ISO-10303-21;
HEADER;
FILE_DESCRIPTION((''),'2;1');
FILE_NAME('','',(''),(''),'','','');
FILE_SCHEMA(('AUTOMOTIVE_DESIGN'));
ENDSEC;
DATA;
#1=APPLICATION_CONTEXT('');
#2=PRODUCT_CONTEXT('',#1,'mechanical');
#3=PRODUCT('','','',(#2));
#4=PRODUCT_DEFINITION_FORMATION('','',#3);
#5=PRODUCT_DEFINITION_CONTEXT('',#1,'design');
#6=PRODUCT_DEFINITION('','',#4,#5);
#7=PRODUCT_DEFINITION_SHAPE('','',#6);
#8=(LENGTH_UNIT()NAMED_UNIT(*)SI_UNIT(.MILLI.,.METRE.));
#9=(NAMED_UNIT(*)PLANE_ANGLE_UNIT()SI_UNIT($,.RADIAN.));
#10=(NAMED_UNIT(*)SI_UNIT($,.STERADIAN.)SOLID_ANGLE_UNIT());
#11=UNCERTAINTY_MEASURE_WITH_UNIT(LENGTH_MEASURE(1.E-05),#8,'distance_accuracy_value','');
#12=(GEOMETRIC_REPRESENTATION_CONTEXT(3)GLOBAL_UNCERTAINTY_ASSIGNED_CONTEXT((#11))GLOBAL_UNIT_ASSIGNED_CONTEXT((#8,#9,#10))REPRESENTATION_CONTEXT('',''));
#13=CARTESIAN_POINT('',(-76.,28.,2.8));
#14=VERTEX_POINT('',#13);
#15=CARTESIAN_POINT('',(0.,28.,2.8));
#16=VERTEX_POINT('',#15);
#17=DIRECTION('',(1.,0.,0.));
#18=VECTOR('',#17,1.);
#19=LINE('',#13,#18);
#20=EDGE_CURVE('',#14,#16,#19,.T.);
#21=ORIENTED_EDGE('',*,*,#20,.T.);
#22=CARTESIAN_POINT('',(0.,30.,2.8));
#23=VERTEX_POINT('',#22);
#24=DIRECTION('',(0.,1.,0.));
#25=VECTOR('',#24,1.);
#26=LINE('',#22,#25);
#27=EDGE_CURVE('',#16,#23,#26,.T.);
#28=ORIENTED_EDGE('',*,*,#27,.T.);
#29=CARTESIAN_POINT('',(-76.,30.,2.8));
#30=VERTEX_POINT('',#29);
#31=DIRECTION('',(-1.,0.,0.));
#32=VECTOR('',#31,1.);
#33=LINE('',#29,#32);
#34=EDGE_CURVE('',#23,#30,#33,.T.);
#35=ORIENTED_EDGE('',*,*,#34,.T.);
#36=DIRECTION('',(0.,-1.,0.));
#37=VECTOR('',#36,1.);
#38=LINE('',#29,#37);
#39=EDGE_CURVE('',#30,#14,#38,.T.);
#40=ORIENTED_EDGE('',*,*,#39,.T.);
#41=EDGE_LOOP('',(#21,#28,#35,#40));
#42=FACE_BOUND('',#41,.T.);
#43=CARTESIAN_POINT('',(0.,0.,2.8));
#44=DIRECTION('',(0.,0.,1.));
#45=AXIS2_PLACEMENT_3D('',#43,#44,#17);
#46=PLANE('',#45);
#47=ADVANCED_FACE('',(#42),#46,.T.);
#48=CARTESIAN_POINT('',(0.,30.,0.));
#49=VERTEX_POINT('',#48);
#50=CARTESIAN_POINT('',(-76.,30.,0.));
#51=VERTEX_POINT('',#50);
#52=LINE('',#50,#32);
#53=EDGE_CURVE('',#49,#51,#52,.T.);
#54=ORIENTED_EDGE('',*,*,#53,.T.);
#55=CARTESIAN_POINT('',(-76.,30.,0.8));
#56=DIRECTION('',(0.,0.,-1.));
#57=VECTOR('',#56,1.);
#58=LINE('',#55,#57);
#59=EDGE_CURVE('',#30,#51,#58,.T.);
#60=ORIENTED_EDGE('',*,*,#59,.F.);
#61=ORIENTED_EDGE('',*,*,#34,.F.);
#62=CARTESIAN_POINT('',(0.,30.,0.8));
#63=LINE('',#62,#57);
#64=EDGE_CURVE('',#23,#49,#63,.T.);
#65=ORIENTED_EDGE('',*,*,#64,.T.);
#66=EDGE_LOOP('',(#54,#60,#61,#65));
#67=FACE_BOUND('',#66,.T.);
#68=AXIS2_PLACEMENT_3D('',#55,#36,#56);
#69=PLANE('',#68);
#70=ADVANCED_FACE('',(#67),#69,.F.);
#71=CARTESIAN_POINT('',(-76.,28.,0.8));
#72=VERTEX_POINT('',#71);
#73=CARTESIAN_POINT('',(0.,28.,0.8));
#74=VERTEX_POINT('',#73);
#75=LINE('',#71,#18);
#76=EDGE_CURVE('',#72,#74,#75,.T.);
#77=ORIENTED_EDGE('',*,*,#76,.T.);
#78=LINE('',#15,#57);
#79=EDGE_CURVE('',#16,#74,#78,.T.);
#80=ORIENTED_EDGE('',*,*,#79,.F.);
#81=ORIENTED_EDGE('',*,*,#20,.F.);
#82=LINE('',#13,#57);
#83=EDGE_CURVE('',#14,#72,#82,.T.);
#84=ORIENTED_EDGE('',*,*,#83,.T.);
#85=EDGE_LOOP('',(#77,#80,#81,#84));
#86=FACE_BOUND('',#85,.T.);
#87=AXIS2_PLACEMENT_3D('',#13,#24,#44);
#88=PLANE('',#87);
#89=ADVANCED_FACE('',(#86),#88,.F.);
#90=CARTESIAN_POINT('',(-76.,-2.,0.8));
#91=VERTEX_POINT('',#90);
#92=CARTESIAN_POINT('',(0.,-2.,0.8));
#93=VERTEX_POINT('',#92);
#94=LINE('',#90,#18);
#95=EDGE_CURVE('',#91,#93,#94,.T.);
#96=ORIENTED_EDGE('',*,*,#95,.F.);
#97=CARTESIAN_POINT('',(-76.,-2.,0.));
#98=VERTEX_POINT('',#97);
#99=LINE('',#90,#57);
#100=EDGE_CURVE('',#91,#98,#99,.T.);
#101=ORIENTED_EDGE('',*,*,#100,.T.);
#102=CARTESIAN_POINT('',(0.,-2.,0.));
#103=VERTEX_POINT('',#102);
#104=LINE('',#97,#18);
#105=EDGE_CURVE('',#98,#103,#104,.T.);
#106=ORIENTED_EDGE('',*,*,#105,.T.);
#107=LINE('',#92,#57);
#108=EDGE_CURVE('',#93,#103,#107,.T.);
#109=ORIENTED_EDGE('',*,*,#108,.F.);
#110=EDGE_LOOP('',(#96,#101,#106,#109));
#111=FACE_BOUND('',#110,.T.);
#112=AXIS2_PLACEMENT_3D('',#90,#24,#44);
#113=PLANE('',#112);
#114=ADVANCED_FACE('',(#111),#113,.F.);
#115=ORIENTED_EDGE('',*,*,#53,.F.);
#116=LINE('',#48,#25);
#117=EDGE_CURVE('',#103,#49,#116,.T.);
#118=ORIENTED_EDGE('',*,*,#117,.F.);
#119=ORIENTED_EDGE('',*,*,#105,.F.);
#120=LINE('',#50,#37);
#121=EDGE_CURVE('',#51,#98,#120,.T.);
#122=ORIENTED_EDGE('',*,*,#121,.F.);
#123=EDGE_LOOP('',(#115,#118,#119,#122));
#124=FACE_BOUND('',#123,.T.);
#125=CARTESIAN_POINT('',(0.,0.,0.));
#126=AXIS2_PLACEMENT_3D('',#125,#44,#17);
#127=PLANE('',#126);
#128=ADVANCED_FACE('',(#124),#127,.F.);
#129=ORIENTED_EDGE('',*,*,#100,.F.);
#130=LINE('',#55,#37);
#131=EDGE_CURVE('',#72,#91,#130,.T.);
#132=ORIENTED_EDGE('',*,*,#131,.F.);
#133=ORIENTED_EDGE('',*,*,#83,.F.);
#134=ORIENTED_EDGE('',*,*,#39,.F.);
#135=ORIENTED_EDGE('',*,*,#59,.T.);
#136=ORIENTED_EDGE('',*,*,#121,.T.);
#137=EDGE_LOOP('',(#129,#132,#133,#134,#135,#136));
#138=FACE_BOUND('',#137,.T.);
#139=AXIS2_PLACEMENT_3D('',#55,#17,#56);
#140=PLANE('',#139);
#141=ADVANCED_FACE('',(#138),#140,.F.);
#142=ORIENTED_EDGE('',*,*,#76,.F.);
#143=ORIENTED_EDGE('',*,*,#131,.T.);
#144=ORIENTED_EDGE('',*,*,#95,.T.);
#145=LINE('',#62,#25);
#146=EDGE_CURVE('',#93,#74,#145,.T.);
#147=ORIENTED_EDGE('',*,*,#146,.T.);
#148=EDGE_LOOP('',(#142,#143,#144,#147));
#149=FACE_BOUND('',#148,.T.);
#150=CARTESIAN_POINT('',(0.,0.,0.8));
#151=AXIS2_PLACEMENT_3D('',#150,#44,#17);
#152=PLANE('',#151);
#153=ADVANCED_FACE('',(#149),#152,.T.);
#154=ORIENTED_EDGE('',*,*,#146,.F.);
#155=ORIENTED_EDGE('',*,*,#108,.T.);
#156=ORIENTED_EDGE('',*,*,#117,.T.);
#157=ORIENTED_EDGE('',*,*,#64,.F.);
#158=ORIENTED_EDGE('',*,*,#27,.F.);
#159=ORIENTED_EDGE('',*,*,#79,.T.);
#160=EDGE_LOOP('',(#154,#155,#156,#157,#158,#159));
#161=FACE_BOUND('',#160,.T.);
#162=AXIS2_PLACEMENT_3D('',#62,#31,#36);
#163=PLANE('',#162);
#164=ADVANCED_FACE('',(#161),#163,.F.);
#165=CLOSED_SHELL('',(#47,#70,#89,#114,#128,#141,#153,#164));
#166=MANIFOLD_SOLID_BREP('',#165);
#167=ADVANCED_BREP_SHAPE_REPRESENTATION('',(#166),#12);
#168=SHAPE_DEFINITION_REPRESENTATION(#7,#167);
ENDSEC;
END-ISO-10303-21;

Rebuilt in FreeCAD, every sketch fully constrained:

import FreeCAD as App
import Part
import Sketcher
Q = App.Units.Quantity

doc = App.newDocument("Part")
params = doc.addObject("Spreadsheet::Sheet", "Params")
for row, (alias, value) in enumerate([
    ("sketch1_width", "76 mm"),
    ("sketch1_height", "32 mm"),
    ("pad1_length", "0.8 mm"),
    ("sketch2_width", "76 mm"),
    ("sketch2_height", "2 mm"),
    ("pad2_length", "2 mm"),
], start=1):
    params.set(f"A{row}", alias)
    params.set(f"B{row}", "=" + value)
    params.setAlias(f"B{row}", alias)

body = doc.addObject("PartDesign::Body", "Body")

# Sketch on XY plane
sketch1 = doc.addObject("Sketcher::SketchObject", "Sketch")
body.addObject(sketch1)
sketch1.AttachmentSupport = (doc.XY_Plane, [""])
sketch1.MapMode = "FlatFace"
sketch1.addGeometry([
    Part.LineSegment(App.Vector(-76, 30, 0), App.Vector(-76, -2, 0)),
    Part.LineSegment(App.Vector(-76, -2, 0), App.Vector(0, -2, 0)),
    Part.LineSegment(App.Vector(0, -2, 0), App.Vector(0, 30, 0)),
    Part.LineSegment(App.Vector(0, 30, 0), App.Vector(-76, 30, 0)),
], False)
sketch1.addConstraint([
    Sketcher.Constraint("Coincident", 0, 2, 1, 1),
    Sketcher.Constraint("Coincident", 1, 2, 2, 1),
    Sketcher.Constraint("Coincident", 2, 2, 3, 1),
    Sketcher.Constraint("Coincident", 3, 2, 0, 1),
    Sketcher.Constraint("Vertical", 0),
    Sketcher.Constraint("Horizontal", 1),
    Sketcher.Constraint("Vertical", 2),
    Sketcher.Constraint("Horizontal", 3),
    Sketcher.Constraint("PointOnObject", 1, 2, -2),
    Sketcher.Constraint("DistanceX", 1, 1, 1, 2, Q("76 mm")),
    Sketcher.Constraint("DistanceY", 0, 2, 0, 1, Q("32 mm")),
    Sketcher.Constraint("DistanceY", 0, 2, -1, 1, Q("2 mm")),
])
sketch1.setExpression("Constraints[9]", "Params.sketch1_width")
sketch1.setExpression("Constraints[10]", "Params.sketch1_height")
pad1 = doc.addObject("PartDesign::Pad", "Pad")
body.addObject(pad1)
pad1.Profile = sketch1
pad1.setExpression("Length", "Params.pad1_length")

# Sketch on XY plane
sketch2 = doc.addObject("Sketcher::SketchObject", "Sketch001")
body.addObject(sketch2)
sketch2.AttachmentSupport = (doc.XY_Plane, [""])
sketch2.MapMode = "FlatFace"
sketch2.AttachmentOffset = App.Placement(App.Vector(0, 0, 0.8), App.Rotation())
sketch2.addGeometry([
    Part.LineSegment(App.Vector(-76, 30, 0), App.Vector(-76, 28, 0)),
    Part.LineSegment(App.Vector(-76, 28, 0), App.Vector(0, 28, 0)),
    Part.LineSegment(App.Vector(0, 28, 0), App.Vector(0, 30, 0)),
    Part.LineSegment(App.Vector(0, 30, 0), App.Vector(-76, 30, 0)),
], False)
sketch2.addConstraint([
    Sketcher.Constraint("Coincident", 0, 2, 1, 1),
    Sketcher.Constraint("Coincident", 1, 2, 2, 1),
    Sketcher.Constraint("Coincident", 2, 2, 3, 1),
    Sketcher.Constraint("Coincident", 3, 2, 0, 1),
    Sketcher.Constraint("Vertical", 0),
    Sketcher.Constraint("Horizontal", 1),
    Sketcher.Constraint("Vertical", 2),
    Sketcher.Constraint("Horizontal", 3),
    Sketcher.Constraint("PointOnObject", 1, 2, -2),
    Sketcher.Constraint("DistanceX", 1, 1, 1, 2, Q("76 mm")),
    Sketcher.Constraint("DistanceY", 0, 2, 0, 1, Q("2 mm")),
    Sketcher.Constraint("DistanceY", -1, 1, 0, 2, Q("28 mm")),
])
sketch2.setExpression("Constraints[9]", "Params.sketch2_width")
sketch2.setExpression("Constraints[10]", "Params.sketch2_height")
pad2 = doc.addObject("PartDesign::Pad", "Pad001")
body.addObject(pad2)
pad2.Profile = sketch2
pad2.setExpression("Length", "Params.pad2_length")

doc.recompute()
